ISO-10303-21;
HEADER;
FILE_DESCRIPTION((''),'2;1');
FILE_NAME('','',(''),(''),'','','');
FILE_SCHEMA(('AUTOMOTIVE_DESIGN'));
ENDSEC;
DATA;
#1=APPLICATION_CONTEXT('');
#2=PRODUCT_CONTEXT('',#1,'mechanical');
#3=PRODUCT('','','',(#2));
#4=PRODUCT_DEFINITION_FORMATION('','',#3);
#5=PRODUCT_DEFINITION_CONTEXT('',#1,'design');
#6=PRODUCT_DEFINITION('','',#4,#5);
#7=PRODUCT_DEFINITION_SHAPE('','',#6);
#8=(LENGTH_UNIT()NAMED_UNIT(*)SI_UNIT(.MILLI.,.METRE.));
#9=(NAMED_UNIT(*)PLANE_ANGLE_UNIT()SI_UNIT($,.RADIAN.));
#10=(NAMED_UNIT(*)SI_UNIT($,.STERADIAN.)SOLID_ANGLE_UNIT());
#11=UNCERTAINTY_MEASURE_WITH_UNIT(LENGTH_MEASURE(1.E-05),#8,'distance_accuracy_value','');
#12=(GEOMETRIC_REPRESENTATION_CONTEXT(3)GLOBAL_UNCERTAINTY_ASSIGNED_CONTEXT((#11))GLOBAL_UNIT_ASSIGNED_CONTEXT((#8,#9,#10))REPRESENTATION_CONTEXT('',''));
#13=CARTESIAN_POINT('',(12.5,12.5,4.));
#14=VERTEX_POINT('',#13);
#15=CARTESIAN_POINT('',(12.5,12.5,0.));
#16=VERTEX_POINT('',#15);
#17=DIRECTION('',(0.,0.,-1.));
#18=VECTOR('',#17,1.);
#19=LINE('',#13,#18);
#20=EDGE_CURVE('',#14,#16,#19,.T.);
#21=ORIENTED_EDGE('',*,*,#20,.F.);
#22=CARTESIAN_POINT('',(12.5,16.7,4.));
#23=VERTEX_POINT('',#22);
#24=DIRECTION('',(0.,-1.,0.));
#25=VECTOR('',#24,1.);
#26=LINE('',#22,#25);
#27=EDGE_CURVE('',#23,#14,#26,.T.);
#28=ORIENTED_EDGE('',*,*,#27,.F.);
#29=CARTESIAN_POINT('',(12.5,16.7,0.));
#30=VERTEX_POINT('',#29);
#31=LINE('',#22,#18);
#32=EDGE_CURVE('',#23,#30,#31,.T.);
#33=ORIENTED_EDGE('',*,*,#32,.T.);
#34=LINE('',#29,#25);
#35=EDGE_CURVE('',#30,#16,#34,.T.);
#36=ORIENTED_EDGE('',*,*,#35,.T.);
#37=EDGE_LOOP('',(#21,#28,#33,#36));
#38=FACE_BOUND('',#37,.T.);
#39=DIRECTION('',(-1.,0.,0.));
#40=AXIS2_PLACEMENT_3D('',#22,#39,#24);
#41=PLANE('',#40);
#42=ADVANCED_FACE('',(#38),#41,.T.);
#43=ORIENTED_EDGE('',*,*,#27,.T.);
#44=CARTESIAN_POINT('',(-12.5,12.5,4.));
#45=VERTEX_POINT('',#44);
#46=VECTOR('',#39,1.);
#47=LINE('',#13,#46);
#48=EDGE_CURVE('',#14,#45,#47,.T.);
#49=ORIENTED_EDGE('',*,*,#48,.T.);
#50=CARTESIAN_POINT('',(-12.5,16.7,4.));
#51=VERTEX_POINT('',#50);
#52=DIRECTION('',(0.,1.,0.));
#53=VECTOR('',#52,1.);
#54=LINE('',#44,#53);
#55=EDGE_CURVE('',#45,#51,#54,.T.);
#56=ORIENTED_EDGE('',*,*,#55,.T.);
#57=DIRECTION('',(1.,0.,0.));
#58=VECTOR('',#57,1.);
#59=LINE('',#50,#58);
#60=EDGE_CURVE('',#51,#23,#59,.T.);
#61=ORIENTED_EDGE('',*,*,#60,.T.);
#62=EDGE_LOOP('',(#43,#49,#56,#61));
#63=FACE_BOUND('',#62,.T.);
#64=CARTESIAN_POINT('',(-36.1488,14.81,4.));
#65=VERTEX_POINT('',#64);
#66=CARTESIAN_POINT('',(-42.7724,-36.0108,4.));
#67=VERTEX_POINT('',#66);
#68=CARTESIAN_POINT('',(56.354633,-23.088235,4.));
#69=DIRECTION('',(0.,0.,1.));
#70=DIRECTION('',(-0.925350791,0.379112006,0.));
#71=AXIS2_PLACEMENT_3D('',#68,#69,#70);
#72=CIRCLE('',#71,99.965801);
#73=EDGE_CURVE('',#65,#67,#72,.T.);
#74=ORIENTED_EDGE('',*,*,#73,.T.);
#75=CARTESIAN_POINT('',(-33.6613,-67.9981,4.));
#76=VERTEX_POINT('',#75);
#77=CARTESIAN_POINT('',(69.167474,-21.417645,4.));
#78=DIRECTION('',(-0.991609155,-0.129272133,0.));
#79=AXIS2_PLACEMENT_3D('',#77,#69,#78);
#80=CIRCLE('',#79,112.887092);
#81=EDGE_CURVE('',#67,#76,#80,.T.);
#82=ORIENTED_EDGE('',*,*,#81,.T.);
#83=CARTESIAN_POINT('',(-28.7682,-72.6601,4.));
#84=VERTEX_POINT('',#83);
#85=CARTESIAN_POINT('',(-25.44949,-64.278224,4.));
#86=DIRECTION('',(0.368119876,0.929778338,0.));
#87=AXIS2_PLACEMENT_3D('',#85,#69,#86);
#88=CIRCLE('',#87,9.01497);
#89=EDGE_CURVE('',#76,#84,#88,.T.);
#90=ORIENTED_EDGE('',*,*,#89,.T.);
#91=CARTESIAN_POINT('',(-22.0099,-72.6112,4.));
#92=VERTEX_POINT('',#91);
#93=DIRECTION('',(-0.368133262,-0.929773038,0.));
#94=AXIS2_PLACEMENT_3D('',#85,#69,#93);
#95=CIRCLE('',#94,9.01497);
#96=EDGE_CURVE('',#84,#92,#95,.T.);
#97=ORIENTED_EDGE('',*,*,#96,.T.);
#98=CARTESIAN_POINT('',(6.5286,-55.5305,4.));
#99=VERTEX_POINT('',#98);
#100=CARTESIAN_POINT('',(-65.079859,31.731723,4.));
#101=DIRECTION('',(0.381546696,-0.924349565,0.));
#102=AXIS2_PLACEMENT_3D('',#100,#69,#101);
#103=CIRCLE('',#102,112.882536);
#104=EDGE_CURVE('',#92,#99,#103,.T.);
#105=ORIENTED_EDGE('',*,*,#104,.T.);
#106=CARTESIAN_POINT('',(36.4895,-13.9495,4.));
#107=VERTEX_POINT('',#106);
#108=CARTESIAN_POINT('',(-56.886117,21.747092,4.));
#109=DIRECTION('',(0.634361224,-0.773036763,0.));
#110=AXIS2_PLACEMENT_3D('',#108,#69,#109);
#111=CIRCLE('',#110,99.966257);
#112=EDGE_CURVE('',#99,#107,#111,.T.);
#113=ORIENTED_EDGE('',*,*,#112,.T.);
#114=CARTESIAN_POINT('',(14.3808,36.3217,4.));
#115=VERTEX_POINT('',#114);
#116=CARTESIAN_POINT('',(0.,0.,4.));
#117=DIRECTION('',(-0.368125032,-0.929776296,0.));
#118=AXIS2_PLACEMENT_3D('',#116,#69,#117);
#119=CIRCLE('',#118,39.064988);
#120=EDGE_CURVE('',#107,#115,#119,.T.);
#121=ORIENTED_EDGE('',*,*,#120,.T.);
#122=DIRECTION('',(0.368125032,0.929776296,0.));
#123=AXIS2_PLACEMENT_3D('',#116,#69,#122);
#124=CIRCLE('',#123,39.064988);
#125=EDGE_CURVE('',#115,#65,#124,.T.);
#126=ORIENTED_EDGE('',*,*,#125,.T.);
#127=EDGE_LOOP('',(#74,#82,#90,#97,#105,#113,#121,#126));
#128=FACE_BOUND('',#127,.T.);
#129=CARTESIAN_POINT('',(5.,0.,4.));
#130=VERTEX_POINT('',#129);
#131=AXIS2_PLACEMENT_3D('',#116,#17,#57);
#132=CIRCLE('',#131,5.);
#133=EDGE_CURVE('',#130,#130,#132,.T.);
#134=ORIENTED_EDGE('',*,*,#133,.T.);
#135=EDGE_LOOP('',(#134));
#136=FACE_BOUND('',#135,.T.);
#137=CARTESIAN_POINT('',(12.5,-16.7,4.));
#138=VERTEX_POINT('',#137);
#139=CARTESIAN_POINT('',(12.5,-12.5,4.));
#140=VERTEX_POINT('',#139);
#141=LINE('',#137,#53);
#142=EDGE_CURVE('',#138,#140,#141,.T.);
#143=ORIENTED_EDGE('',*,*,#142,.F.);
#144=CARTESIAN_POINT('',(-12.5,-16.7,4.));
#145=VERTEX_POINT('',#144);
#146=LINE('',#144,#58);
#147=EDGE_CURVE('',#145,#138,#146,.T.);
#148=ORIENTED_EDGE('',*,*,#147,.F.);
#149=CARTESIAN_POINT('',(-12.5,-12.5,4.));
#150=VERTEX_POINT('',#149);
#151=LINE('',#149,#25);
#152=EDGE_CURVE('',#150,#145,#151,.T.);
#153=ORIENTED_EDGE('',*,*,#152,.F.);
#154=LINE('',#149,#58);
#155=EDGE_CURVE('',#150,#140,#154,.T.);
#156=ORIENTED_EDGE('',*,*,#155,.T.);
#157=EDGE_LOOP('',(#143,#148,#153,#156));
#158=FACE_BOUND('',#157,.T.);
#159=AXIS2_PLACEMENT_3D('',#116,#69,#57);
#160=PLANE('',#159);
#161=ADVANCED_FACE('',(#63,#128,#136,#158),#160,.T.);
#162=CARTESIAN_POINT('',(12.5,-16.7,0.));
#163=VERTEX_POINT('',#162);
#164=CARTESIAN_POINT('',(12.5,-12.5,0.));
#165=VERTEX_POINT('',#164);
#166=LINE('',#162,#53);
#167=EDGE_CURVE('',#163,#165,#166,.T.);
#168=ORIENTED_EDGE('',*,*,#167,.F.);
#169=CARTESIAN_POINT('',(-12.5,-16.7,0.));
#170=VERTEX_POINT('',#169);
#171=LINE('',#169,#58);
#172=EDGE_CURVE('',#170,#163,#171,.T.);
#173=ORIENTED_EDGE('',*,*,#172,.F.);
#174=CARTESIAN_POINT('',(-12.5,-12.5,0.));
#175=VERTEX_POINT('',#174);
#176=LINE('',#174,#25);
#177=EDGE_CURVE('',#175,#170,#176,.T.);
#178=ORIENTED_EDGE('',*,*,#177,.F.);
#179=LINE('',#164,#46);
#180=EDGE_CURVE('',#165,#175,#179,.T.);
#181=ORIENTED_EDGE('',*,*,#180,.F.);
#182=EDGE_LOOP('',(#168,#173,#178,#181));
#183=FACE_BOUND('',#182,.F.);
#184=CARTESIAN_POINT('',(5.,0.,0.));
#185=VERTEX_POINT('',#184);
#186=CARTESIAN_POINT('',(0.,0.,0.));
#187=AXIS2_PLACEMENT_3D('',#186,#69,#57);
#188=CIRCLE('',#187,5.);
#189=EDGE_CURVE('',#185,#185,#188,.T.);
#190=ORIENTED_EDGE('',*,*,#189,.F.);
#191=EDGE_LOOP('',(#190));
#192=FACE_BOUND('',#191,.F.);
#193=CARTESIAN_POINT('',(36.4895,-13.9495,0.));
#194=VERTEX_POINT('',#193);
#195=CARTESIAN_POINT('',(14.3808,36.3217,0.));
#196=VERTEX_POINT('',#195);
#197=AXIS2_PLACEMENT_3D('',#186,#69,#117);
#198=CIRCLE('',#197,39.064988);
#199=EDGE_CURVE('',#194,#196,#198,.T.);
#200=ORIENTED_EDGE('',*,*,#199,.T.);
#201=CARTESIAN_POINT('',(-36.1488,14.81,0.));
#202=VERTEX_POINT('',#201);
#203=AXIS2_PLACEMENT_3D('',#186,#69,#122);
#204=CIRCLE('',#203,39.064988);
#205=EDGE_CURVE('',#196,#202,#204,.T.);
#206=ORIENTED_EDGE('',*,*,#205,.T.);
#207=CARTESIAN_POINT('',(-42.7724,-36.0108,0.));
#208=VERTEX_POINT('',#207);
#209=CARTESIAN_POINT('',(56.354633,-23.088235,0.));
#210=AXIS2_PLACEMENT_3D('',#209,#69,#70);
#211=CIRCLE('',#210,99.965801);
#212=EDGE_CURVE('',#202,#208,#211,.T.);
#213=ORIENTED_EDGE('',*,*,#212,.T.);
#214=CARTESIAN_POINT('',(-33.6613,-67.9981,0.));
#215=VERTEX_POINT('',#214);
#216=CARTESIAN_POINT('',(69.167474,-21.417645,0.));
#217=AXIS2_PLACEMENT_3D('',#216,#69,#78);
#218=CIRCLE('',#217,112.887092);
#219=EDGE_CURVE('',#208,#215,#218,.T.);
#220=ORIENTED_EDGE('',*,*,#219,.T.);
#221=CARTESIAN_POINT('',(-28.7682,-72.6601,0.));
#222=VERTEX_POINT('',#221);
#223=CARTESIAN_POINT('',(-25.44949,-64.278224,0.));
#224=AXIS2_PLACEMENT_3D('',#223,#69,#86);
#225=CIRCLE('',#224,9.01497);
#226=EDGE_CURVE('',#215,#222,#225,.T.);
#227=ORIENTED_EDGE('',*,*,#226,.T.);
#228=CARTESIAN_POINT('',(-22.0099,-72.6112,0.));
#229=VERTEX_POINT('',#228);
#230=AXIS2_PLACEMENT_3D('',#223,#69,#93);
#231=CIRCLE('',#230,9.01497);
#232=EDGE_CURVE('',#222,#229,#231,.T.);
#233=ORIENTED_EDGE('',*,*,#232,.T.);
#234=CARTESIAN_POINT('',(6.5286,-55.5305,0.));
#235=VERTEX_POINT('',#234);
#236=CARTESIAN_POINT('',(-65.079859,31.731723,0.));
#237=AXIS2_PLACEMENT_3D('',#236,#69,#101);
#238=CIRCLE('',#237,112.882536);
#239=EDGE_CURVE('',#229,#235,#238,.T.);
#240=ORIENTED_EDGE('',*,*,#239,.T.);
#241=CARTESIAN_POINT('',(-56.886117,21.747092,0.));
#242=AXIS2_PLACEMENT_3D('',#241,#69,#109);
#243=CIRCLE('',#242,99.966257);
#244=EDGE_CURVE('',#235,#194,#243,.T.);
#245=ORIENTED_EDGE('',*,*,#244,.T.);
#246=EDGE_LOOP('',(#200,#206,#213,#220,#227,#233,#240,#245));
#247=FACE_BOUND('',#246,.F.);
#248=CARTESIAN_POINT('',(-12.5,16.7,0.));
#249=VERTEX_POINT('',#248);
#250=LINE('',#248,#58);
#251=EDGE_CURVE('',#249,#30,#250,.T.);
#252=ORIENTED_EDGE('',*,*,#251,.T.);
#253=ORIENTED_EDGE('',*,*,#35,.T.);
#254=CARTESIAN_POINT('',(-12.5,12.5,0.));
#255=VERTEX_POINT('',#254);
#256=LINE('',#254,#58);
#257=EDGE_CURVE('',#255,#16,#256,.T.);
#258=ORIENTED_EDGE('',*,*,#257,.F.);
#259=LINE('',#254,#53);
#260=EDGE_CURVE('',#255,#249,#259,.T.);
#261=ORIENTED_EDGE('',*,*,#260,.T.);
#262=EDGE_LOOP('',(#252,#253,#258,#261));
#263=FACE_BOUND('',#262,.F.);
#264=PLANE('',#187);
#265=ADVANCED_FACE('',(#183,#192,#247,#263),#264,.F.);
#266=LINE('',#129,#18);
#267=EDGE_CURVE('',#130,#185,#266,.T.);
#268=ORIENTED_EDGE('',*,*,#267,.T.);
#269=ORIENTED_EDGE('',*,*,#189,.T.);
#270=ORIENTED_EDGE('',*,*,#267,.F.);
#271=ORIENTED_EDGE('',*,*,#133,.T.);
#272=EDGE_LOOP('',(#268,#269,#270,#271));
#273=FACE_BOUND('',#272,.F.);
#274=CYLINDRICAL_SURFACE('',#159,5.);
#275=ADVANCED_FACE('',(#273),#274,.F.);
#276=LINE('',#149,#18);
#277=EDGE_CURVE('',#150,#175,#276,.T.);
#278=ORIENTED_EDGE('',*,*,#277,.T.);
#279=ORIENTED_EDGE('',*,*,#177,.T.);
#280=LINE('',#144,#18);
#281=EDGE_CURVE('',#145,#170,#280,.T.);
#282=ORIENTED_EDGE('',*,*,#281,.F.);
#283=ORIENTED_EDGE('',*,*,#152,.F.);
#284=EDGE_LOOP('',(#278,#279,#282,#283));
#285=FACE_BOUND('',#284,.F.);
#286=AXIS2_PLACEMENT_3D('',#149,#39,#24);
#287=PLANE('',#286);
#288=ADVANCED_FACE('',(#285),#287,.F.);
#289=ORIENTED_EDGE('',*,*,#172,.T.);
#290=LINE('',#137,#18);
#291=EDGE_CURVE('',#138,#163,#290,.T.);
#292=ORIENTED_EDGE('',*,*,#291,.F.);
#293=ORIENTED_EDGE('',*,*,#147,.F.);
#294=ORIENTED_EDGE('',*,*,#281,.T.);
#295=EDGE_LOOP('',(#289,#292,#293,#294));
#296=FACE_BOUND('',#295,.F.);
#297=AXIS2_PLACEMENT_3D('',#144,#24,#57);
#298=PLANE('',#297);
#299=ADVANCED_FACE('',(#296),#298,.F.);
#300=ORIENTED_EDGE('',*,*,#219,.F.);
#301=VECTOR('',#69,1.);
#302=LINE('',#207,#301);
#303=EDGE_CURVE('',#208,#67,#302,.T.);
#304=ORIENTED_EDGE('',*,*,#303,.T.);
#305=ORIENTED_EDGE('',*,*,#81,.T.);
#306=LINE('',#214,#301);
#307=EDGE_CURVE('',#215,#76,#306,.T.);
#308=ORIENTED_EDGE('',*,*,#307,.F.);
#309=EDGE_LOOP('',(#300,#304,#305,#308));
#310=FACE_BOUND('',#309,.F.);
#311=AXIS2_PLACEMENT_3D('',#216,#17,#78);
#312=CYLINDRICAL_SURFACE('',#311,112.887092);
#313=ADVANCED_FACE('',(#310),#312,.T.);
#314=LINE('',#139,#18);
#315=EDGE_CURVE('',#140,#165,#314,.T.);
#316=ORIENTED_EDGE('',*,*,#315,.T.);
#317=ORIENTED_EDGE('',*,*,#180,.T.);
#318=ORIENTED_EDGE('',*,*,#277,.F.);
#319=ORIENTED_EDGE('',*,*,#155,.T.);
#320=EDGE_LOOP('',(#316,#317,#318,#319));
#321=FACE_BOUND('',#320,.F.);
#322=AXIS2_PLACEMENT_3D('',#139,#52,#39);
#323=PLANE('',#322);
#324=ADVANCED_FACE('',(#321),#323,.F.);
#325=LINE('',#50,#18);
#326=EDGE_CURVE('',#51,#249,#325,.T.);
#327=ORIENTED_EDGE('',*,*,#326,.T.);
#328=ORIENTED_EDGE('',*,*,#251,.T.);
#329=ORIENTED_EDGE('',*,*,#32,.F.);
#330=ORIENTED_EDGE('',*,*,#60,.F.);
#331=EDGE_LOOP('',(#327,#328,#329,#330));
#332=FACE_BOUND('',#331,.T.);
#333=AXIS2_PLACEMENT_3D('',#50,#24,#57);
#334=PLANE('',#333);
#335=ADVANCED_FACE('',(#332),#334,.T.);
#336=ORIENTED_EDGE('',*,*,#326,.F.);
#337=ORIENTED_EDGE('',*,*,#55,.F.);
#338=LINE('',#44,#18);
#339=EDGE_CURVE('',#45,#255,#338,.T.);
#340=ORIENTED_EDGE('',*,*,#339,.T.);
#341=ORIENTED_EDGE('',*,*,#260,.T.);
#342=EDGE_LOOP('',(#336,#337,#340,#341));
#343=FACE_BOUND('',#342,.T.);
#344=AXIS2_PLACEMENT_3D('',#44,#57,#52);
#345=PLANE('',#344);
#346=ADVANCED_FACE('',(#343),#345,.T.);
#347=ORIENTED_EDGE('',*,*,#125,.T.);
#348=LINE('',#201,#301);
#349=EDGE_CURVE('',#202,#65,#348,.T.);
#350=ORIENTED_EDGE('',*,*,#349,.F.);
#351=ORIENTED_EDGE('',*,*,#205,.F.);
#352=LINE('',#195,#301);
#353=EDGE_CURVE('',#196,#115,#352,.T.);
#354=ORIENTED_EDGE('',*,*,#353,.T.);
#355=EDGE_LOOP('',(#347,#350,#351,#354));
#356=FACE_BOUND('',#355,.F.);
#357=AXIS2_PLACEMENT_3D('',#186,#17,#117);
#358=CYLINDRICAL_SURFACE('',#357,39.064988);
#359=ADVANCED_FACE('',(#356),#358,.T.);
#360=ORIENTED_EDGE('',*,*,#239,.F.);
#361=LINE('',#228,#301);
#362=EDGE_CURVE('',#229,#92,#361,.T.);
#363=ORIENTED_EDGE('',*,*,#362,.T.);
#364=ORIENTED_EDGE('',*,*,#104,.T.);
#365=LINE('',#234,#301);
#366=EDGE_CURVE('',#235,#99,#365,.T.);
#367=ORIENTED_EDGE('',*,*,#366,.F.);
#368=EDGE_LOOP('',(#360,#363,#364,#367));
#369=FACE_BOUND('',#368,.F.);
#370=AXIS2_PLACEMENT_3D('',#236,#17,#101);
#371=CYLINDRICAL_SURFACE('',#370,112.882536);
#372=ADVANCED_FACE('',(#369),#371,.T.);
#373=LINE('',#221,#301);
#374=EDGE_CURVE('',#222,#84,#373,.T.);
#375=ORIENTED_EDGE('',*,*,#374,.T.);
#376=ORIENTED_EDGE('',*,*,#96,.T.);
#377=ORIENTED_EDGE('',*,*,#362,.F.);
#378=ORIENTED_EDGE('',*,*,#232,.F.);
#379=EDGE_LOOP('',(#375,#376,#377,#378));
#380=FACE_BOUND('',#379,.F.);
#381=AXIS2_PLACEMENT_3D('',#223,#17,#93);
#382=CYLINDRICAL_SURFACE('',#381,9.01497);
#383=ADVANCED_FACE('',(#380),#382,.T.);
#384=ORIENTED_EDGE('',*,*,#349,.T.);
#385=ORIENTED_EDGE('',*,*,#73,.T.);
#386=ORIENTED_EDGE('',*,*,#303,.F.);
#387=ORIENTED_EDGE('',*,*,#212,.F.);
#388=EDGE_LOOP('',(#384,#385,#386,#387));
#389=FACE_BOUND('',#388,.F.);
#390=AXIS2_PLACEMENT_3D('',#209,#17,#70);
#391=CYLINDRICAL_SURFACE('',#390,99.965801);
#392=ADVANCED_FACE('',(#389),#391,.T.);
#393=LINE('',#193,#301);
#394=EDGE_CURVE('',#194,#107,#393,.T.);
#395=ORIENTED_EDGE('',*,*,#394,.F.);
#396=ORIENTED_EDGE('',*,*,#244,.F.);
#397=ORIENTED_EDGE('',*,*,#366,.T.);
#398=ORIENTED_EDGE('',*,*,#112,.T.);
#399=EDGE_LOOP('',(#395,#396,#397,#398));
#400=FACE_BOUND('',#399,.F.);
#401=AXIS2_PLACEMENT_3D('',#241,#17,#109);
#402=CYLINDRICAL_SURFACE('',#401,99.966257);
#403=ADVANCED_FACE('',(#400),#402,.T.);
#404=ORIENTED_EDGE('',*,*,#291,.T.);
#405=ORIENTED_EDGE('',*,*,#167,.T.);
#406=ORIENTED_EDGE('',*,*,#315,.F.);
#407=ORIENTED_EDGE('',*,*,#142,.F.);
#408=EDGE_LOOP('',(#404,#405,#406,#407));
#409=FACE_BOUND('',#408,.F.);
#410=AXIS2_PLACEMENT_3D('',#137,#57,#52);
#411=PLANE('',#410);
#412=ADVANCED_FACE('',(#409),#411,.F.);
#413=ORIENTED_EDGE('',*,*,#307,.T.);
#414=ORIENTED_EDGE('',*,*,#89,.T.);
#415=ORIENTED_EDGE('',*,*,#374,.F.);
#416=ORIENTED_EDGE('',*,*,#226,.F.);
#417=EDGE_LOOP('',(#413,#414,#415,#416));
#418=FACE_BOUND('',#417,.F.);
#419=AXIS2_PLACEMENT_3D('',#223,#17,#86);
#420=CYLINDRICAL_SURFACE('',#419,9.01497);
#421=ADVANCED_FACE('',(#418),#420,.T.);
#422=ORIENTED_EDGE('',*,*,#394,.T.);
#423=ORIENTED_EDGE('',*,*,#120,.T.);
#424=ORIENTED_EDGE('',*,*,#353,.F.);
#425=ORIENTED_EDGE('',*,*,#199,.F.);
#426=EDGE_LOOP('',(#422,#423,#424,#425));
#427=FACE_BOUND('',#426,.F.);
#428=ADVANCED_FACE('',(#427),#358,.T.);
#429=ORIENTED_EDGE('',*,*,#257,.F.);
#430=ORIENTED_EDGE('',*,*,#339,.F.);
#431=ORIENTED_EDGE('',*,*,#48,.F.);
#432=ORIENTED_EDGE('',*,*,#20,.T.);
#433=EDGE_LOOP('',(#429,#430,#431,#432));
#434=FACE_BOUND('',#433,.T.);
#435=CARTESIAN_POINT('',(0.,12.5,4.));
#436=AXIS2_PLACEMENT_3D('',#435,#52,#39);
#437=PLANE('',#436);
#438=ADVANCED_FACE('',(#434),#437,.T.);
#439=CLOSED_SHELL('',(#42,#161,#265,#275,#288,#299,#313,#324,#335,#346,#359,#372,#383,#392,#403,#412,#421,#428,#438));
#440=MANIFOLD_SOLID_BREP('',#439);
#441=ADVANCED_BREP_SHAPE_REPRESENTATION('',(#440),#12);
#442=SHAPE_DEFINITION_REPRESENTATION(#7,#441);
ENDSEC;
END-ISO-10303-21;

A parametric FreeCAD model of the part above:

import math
import FreeCAD as App
import Part
import Sketcher
from FreeCAD import Vector


def add_polygon(sketch, points):
    """Adds a closed chain of lines whose ends are joined by coincident constraints."""
    first, n = sketch.GeometryCount, len(points)
    for a, b in zip(points, points[1:] + points[:1]):
        sketch.addGeometry(Part.LineSegment(App.Vector(*a, 0), App.Vector(*b, 0)), False)
    for i in range(n):
        sketch.addConstraint(Sketcher.Constraint("Coincident", first + i, 2, first + (i + 1) % n, 1))

doc = App.newDocument("Part")
params = doc.addObject("Spreadsheet::Sheet", "Params")
for row, (alias, value) in enumerate([
    ("pad1_length", "4 mm"),
    ("sketch2_diameter", "10 mm"),
    ("sketch2_width", "25 mm"),
    ("sketch2_height", "4.2 mm"),
    ("pocket1_length", "4 mm"),
], start=1):
    params.set(f"A{row}", alias)
    params.set(f"B{row}", "=" + value)
    params.setAlias(f"B{row}", alias)

body = doc.addObject("PartDesign::Body", "Body")

sketch1 = body.newObject("Sketcher::SketchObject", "Sketch")
sketch1.AttachmentSupport = (doc.getObject("XY_Plane"), [""])
sketch1.MapMode = "FlatFace"
sketch1.addGeometry([
    Part.ArcOfCircle(Part.Circle(Vector(0, 0, 0), Vector(0, 0, 1), 39.064988), math.radians(-20.921258), math.radians(157.721309)),
    Part.ArcOfCircle(Part.Circle(Vector(56.3545, -23.0882, 0), Vector(0, 0, 1), 99.965664), math.radians(157.721301), math.radians(187.427432)),
    Part.ArcOfCircle(Part.Circle(Vector(69.167474, -21.417645, 0), Vector(0, 0, 1), 112.887092), math.radians(-172.572466), math.radians(-155.629926)),
    Part.ArcOfCircle(Part.Circle(Vector(-25.4495, -64.2782, 0), Vector(0, 0, 1), 9.014988), math.radians(-155.629736), math.radians(-111.60042)),
    Part.ArcOfCircle(Part.Circle(Vector(-25.4495, -64.2782, 0), Vector(0, 0, 1), 9.014988), math.radians(-111.60042), math.radians(-67.570706)),
    Part.ArcOfCircle(Part.Circle(Vector(-65.079859, 31.731723, 0), Vector(0, 0, 1), 112.882536), math.radians(-67.570478), math.radians(-50.627274)),
    Part.ArcOfCircle(Part.Circle(Vector(-56.8857, 21.7467, 0), Vector(0, 0, 1), 99.96569), math.radians(-50.627419), math.radians(-20.921246)),
], False)
sketch1.addConstraint([
    Sketcher.Constraint("Tangent", 0, 2, 1, 1),
    Sketcher.Constraint("Tangent", 1, 2, 2, 1),
    Sketcher.Constraint("Tangent", 2, 2, 3, 1),
    Sketcher.Constraint("Tangent", 3, 2, 4, 1),
    Sketcher.Constraint("Tangent", 4, 2, 5, 1),
    Sketcher.Constraint("Tangent", 5, 2, 6, 1),
    Sketcher.Constraint("Tangent", 6, 2, 0, 1),
    Sketcher.Constraint("Coincident", 0, 3, -1, 1),
    Sketcher.Constraint("Equal", 3, 4),
    Sketcher.Constraint("Equal", 1, 6),
    Sketcher.Constraint("Radius", 0, 39.065),
    Sketcher.Constraint("Radius", 3, 9.015),
    Sketcher.Constraint("Radius", 2, 112.887),
    Sketcher.Constraint("Radius", 1, 99.9657),
    Sketcher.Constraint("Radius", 5, 112.8825),
    Sketcher.Constraint("DistanceY", -1, 1, 0, 2, 14.81),
    Sketcher.Constraint("DistanceY", 3, 2, -1, 1, 72.66),
    Sketcher.Constraint("DistanceX", 4, 2, -1, 1, 22.01),
    Sketcher.Constraint("DistanceY", 3, 3, 1, 3, 41.19),
    Sketcher.Constraint("DistanceY", 3, 3, 5, 3, 96.01),
])
pad1 = body.newObject("PartDesign::Pad", "Pad")
pad1.Profile = sketch1
pad1.setExpression("Length", "Params.pad1_length")

sketch2 = body.newObject("Sketcher::SketchObject", "Sketch001")
sketch2.AttachmentSupport = (doc.getObject("XY_Plane"), [""])
sketch2.MapMode = "FlatFace"
sketch2.AttachmentOffset = App.Placement(Vector(0, 0, 4), App.Rotation())
sketch2.addGeometry(Part.Circle(Vector(0, 0, 0), Vector(0, 0, 1), 5), False)
add_polygon(sketch2, [(-12.5, 12.5), (12.5, 12.5), (12.5, 16.7), (-12.5, 16.7)])
add_polygon(sketch2, [(12.5, -12.5), (-12.5, -12.5), (-12.5, -16.7), (12.5, -16.7)])
sketch2.addConstraint([
    Sketcher.Constraint("Horizontal", 1),
    Sketcher.Constraint("Vertical", 2),
    Sketcher.Constraint("Horizontal", 3),
    Sketcher.Constraint("Vertical", 4),
    Sketcher.Constraint("Horizontal", 5),
    Sketcher.Constraint("Vertical", 6),
    Sketcher.Constraint("Horizontal", 7),
    Sketcher.Constraint("Vertical", 8),
    Sketcher.Constraint("Coincident", 0, 3, -1, 1),
    Sketcher.Constraint("Symmetric", 1, 2, 5, 2, -1, 1),
    Sketcher.Constraint("Symmetric", 3, 2, 7, 2, -1, 1),
    Sketcher.Constraint("Vertical", 4, 2, 5, 2),
    Sketcher.Constraint("Diameter", 0, 10.0),
    Sketcher.Constraint("DistanceX", 1, 1, 1, 2, 25.0),
    Sketcher.Constraint("DistanceY", 2, 1, 2, 2, 4.2),
    Sketcher.Constraint("DistanceY", 5, 2, 4, 2, 25.0),
])
sketch2.setExpression("Constraints[20]", "Params.sketch2_diameter")
sketch2.setExpression("Constraints[21]", "Params.sketch2_width")
sketch2.setExpression("Constraints[22]", "Params.sketch2_height")
pocket1 = body.newObject("PartDesign::Pocket", "Pocket")
pocket1.Profile = sketch2
pocket1.setExpression("Length", "Params.pocket1_length")

doc.recompute()
